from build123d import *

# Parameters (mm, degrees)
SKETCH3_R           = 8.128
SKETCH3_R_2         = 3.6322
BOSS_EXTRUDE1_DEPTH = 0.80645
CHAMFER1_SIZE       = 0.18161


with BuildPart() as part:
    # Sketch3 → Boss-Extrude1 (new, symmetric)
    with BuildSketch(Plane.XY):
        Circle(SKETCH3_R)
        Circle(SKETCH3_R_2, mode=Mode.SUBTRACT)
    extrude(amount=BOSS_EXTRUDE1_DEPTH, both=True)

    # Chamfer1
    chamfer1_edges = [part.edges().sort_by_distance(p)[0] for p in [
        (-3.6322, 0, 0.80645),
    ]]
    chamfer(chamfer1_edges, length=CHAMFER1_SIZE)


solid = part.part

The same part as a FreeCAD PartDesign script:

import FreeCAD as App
import Part
import Sketcher

V = App.Vector
Q = App.Units.Quantity


def edges_at(feature, points):
    """Names of the edges that pass closest to the given points."""
    edges = feature.Shape.Edges
    near = lambda p: min(range(len(edges)), key=lambda i: edges[i].distToShape(Part.Vertex(*p))[0])
    return sorted({f"Edge{near(p) + 1}" for p in points})

doc = App.newDocument("Part")
body = doc.addObject("PartDesign::Body", "Body")

sketch1 = body.newObject("Sketcher::SketchObject", "Sketch")
sketch1.AttachmentSupport = (doc.getObject("XY_Plane"), [""])
sketch1.MapMode = "FlatFace"
sketch1.addGeometry([
    Part.Circle(V(0, 0, 0), V(0, 0, 1), 8.1),
    Part.Circle(V(0, 0, 0), V(0, 0, 1), 3.6),
], False)
sketch1.addConstraint([
    Sketcher.Constraint("Coincident", 0, 3, -1, 1),
    Sketcher.Constraint("Coincident", 1, 3, -1, 1),
    Sketcher.Constraint("Diameter", 0, Q("0.64 in")),
    Sketcher.Constraint("Diameter", 1, Q("0.286 in")),
])
pad1 = body.newObject("PartDesign::Pad", "Pad")
pad1.Profile = sketch1
pad1.Length = Q("0.0635 in")
pad1.Midplane = True
doc.recompute()

chamfer = body.newObject("PartDesign::Chamfer", "Chamfer")
chamfer.Base = (pad1, edges_at(pad1, [(-3.632, 0, 0.806)]))
chamfer.Size = 0.18161

doc.recompute()
